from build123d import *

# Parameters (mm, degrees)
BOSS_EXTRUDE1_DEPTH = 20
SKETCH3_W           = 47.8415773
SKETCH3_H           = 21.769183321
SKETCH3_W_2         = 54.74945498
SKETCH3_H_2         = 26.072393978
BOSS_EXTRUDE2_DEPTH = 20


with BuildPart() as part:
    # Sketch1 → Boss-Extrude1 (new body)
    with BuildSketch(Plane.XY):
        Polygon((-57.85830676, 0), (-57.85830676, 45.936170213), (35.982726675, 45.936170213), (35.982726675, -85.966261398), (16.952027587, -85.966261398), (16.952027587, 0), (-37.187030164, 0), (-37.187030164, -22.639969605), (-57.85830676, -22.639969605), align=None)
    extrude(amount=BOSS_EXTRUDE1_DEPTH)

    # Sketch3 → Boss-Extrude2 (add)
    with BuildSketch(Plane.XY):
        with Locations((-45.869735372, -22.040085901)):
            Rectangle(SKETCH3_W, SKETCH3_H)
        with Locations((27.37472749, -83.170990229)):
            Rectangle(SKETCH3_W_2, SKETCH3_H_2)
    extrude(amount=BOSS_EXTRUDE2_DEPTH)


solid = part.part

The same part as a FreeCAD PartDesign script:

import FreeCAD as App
import Part
import Sketcher

doc = App.newDocument("Part")
body = doc.addObject("PartDesign::Body", "Body")

sketch1 = doc.addObject("Sketcher::SketchObject", "Sketch")
body.addObject(sketch1)
sketch1.AttachmentSupport = (doc.XY_Plane, [""])
sketch1.MapMode = "FlatFace"
sketch1.addGeometry([
    Part.LineSegment(App.Vector(-58, 46, 0), App.Vector(-58, -23, 0)),
    Part.LineSegment(App.Vector(-58, -23, 0), App.Vector(-37, -23, 0)),
    Part.LineSegment(App.Vector(-37, -23, 0), App.Vector(-37, 0, 0)),
    Part.LineSegment(App.Vector(-37, 0, 0), App.Vector(17, 0, 0)),
    Part.LineSegment(App.Vector(17, 0, 0), App.Vector(17, -86, 0)),
    Part.LineSegment(App.Vector(17, -86, 0), App.Vector(36, -86, 0)),
    Part.LineSegment(App.Vector(36, -86, 0), App.Vector(36, 46, 0)),
    Part.LineSegment(App.Vector(36, 46, 0), App.Vector(-58, 46, 0)),
], False)
sketch1.addConstraint([
    Sketcher.Constraint("Coincident", 0, 2, 1, 1),
    Sketcher.Constraint("Coincident", 1, 2, 2, 1),
    Sketcher.Constraint("Coincident", 2, 2, 3, 1),
    Sketcher.Constraint("Coincident", 3, 2, 4, 1),
    Sketcher.Constraint("Coincident", 4, 2, 5, 1),
    Sketcher.Constraint("Coincident", 5, 2, 6, 1),
    Sketcher.Constraint("Coincident", 6, 2, 7, 1),
    Sketcher.Constraint("Coincident", 7, 2, 0, 1),
    Sketcher.Constraint("Vertical", 0),
    Sketcher.Constraint("Horizontal", 1),
    Sketcher.Constraint("Vertical", 2),
    Sketcher.Constraint("Horizontal", 3),
    Sketcher.Constraint("Vertical", 4),
    Sketcher.Constraint("Horizontal", 5),
    Sketcher.Constraint("Vertical", 6),
    Sketcher.Constraint("Horizontal", 7),
    Sketcher.Constraint("PointOnObject", 2, 2, -1),
    Sketcher.Constraint("DistanceX", 5, 1, 5, 2, 19.030699),
    Sketcher.Constraint("DistanceY", 0, 2, 0, 1, 68.57614),
    Sketcher.Constraint("DistanceY", 2, 1, 2, 2, 22.63997),
    Sketcher.Constraint("DistanceY", 4, 2, 4, 1, 85.966261),
    Sketcher.Constraint("DistanceX", 1, 1, 1, 2, 20.671277),
    Sketcher.Constraint("DistanceX", 3, 1, 3, 2, 54.139058),
    Sketcher.Constraint("DistanceX", 1, 2, -1, 1, 37.18703),
])
pad1 = doc.addObject("PartDesign::Pad", "Pad")
body.addObject(pad1)
pad1.Profile = sketch1
pad1.Length = 20

sketch2 = doc.addObject("Sketcher::SketchObject", "Sketch001")
body.addObject(sketch2)
sketch2.AttachmentSupport = (doc.XY_Plane, [""])
sketch2.MapMode = "FlatFace"
sketch2.addGeometry([
    Part.LineSegment(App.Vector(-70, -11, 0), App.Vector(-70, -33, 0)),
    Part.LineSegment(App.Vector(-70, -33, 0), App.Vector(-22, -33, 0)),
    Part.LineSegment(App.Vector(-22, -33, 0), App.Vector(-22, -11, 0)),
    Part.LineSegment(App.Vector(-22, -11, 0), App.Vector(-70, -11, 0)),
    Part.LineSegment(App.Vector(0, -70, 0), App.Vector(0, -96, 0)),
    Part.LineSegment(App.Vector(0, -96, 0), App.Vector(55, -96, 0)),
    Part.LineSegment(App.Vector(55, -96, 0), App.Vector(55, -70, 0)),
    Part.LineSegment(App.Vector(55, -70, 0), App.Vector(0, -70, 0)),
], False)
sketch2.addConstraint([
    Sketcher.Constraint("Coincident", 0, 2, 1, 1),
    Sketcher.Constraint("Coincident", 1, 2, 2, 1),
    Sketcher.Constraint("Coincident", 2, 2, 3, 1),
    Sketcher.Constraint("Coincident", 3, 2, 0, 1),
    Sketcher.Constraint("Coincident", 4, 2, 5, 1),
    Sketcher.Constraint("Coincident", 5, 2, 6, 1),
    Sketcher.Constraint("Coincident", 6, 2, 7, 1),
    Sketcher.Constraint("Coincident", 7, 2, 4, 1),
    Sketcher.Constraint("Vertical", 0),
    Sketcher.Constraint("Horizontal", 1),
    Sketcher.Constraint("Vertical", 2),
    Sketcher.Constraint("Horizontal", 3),
    Sketcher.Constraint("Vertical", 4),
    Sketcher.Constraint("Horizontal", 5),
    Sketcher.Constraint("Vertical", 6),
    Sketcher.Constraint("Horizontal", 7),
    Sketcher.Constraint("PointOnObject", 4, 2, -2),
    Sketcher.Constraint("DistanceX", 1, 2, 5, 2, 76.698402),
    Sketcher.Constraint("DistanceY", 6, 2, 2, 2, 58.979299),
    Sketcher.Constraint("DistanceX", 1, 1, 1, 2, 47.841577),
    Sketcher.Constraint("DistanceX", 5, 1, 5, 2, 54.749455),
    Sketcher.Constraint("DistanceY", 0, 2, 0, 1, 21.769183),
    Sketcher.Constraint("DistanceY", 4, 2, 4, 1, 26.072394),
    Sketcher.Constraint("DistanceY", 0, 2, -1, 1, 32.924678),
])
pad2 = doc.addObject("PartDesign::Pad", "Pad001")
body.addObject(pad2)
pad2.Profile = sketch2
pad2.Length = 20

doc.recompute()
